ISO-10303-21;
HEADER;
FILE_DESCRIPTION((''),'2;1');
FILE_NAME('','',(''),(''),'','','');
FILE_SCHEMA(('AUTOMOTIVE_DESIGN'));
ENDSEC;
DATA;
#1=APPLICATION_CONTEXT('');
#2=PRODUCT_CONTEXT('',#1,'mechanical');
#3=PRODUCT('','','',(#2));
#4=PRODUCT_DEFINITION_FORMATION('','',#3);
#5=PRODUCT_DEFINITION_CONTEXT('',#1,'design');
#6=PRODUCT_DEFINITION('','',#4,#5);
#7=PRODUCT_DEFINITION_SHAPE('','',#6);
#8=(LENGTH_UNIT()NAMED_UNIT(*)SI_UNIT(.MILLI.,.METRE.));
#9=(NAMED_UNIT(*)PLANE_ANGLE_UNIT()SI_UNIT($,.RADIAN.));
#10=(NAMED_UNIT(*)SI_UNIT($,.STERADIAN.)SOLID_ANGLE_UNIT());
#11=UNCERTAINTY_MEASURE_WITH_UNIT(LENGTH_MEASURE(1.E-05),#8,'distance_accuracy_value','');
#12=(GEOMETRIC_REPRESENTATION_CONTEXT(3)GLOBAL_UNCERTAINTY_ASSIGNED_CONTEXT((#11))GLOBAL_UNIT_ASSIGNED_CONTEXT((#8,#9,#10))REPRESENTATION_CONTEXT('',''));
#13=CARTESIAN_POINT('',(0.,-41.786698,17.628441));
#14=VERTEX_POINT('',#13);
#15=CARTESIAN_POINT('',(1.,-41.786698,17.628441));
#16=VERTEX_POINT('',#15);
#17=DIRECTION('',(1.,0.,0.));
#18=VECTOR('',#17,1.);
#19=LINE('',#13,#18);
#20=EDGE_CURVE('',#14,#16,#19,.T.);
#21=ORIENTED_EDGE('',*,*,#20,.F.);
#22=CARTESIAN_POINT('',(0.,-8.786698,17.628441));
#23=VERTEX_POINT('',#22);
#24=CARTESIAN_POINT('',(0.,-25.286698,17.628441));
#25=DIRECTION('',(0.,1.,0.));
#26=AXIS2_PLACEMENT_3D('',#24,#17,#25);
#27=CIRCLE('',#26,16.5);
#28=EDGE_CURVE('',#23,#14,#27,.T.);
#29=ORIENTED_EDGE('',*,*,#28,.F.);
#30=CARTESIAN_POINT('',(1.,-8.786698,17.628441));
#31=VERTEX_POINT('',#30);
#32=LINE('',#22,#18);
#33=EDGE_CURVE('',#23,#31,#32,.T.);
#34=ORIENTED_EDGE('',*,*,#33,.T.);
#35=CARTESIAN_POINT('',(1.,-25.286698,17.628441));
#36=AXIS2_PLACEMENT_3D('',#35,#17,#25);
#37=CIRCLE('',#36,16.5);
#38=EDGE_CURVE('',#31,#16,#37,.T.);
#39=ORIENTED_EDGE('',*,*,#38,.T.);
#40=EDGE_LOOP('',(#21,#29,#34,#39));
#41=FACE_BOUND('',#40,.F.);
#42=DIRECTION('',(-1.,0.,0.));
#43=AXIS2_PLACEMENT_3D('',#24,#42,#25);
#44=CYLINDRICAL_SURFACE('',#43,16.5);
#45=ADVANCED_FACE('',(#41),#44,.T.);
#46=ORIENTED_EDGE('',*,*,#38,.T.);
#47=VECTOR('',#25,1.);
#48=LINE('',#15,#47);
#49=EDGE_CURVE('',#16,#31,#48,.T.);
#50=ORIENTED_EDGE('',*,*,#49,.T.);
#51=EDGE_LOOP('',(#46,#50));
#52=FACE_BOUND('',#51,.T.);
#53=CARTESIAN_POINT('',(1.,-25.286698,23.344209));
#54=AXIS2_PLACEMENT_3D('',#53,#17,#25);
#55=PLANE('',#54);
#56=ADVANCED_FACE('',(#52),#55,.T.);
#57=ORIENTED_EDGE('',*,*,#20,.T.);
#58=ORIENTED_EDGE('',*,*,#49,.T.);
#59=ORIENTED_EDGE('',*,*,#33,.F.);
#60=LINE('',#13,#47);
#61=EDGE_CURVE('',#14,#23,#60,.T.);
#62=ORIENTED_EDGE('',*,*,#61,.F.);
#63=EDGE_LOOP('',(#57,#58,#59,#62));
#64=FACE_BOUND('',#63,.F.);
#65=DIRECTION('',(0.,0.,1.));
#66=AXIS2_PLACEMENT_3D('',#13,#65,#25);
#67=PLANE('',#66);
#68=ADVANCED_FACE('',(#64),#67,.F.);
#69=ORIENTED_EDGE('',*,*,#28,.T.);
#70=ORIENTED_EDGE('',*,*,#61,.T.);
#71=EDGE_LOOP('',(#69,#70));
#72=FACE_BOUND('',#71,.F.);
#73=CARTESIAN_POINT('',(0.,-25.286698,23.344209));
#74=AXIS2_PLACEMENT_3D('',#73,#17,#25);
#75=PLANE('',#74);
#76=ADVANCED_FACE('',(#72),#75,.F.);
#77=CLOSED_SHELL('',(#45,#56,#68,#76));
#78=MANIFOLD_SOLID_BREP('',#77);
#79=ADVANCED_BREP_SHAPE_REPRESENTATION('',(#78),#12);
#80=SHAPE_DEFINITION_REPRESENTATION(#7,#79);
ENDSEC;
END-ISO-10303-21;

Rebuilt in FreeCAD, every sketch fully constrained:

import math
import FreeCAD as App
import Part
import Sketcher

V = App.Vector
Q = App.Units.Quantity

doc = App.newDocument("Part")
params = doc.addObject("Spreadsheet::Sheet", "Params")
for row, (alias, value) in enumerate([
    ("sketch1_radius", "16.5 mm"),
    ("pad1_length", "1 mm"),
], start=1):
    params.set(f"A{row}", alias)
    params.set(f"B{row}", "=" + value)
    params.setAlias(f"B{row}", alias)

body = doc.addObject("PartDesign::Body", "Body")

sketch1 = body.newObject("Sketcher::SketchObject", "Sketch")
sketch1.AttachmentSupport = (doc.getObject("YZ_Plane"), [""])
sketch1.MapMode = "FlatFace"
sketch1.addGeometry(Part.ArcOfCircle(Part.Circle(V(-25, 18, 0), V(0, 0, 1), 16), math.radians(0), math.radians(180)), False)
sketch1.addGeometry(Part.LineSegment(V(-42, 18, 0), V(-9, 18, 0)), False)
sketch1.addConstraint(Sketcher.Constraint("Coincident", 0, 1, 1, 2))
sketch1.addConstraint(Sketcher.Constraint("Coincident", 1, 1, 0, 2))
sketch1.addConstraint(Sketcher.Constraint("Horizontal", 1))
sketch1.addConstraint(Sketcher.Constraint("Radius", 0, Q("16.5 mm")))
sketch1.addConstraint(Sketcher.Constraint("DistanceX", 0, 3, -1, 1, Q("25.286698 mm")))
sketch1.addConstraint(Sketcher.Constraint("DistanceY", -1, 1, 0, 3, Q("17.628441 mm")))
sketch1.addConstraint(Sketcher.Constraint("DistanceY", -1, 1, 0, 1, Q("17.628441 mm")))
sketch1.setExpression("Constraints[3]", "Params.sketch1_radius")
pad1 = body.newObject("PartDesign::Pad", "Pad")
pad1.Profile = sketch1
pad1.setExpression("Length", "Params.pad1_length")

doc.recompute()
